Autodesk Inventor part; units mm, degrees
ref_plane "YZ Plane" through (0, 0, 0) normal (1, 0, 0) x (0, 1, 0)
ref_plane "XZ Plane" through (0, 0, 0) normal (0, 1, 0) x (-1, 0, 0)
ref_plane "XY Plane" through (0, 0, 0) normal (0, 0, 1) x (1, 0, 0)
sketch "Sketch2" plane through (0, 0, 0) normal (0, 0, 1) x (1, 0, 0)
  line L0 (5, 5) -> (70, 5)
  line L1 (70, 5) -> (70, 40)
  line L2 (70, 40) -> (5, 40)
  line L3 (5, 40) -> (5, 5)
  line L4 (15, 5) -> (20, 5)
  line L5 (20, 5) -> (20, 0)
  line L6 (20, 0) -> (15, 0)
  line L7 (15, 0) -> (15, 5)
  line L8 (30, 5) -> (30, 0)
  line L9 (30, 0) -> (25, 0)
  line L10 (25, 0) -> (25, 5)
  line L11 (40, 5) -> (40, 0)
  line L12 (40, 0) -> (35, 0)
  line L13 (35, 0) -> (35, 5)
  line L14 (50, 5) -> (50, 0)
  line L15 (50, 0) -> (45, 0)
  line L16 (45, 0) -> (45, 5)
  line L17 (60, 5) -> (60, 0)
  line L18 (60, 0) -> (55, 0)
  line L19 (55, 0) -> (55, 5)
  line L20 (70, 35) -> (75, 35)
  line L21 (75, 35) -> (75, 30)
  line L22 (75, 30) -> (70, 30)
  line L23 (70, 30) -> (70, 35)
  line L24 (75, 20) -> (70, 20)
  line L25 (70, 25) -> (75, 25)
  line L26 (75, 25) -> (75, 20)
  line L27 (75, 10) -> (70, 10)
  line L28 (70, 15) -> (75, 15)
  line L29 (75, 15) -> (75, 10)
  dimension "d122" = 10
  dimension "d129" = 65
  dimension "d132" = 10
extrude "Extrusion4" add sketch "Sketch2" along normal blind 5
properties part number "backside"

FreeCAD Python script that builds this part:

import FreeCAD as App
import Part
import Sketcher

V = App.Vector


def add_polygon(sketch, points):
    """Adds a closed chain of lines whose ends are joined by coincident constraints."""
    first, n = sketch.GeometryCount, len(points)
    for a, b in zip(points, points[1:] + points[:1]):
        sketch.addGeometry(Part.LineSegment(App.Vector(*a, 0), App.Vector(*b, 0)), False)
    for i in range(n):
        sketch.addConstraint(Sketcher.Constraint("Coincident", first + i, 2, first + (i + 1) % n, 1))

doc = App.newDocument("Part")
body = doc.addObject("PartDesign::Body", "Body")

# Sketch on XY plane
sketch1 = body.newObject("Sketcher::SketchObject", "Sketch")
sketch1.AttachmentSupport = (doc.getObject("XY_Plane"), [""])
sketch1.MapMode = "FlatFace"
add_polygon(sketch1, [(5, 40), (5, 5), (15, 5), (15, 0), (20, 0), (20, 5), (25, 5), (25, 0), (30, 0), (30, 5), (35, 5), (35, 0), (40, 0), (40, 5), (45, 5), (45, 0), (50, 0), (50, 5), (55, 5), (55, 0), (60, 0), (60, 5), (70, 5), (70, 10), (75, 10), (75, 15), (70, 15), (70, 20), (75, 20), (75, 25), (70, 25), (70, 30), (75, 30), (75, 35), (70, 35), (70, 40)])  # lines 0-35
sketch1.addConstraint(Sketcher.Constraint("Vertical", 0))
sketch1.addConstraint(Sketcher.Constraint("Horizontal", 1))
sketch1.addConstraint(Sketcher.Constraint("Vertical", 2))
sketch1.addConstraint(Sketcher.Constraint("Horizontal", 3))
sketch1.addConstraint(Sketcher.Constraint("Vertical", 4))
sketch1.addConstraint(Sketcher.Constraint("Horizontal", 5))
sketch1.addConstraint(Sketcher.Constraint("Vertical", 6))
sketch1.addConstraint(Sketcher.Constraint("Horizontal", 7))
sketch1.addConstraint(Sketcher.Constraint("Vertical", 8))
sketch1.addConstraint(Sketcher.Constraint("Horizontal", 9))
sketch1.addConstraint(Sketcher.Constraint("Vertical", 10))
sketch1.addConstraint(Sketcher.Constraint("Horizontal", 11))
sketch1.addConstraint(Sketcher.Constraint("Vertical", 12))
sketch1.addConstraint(Sketcher.Constraint("Horizontal", 13))
sketch1.addConstraint(Sketcher.Constraint("Vertical", 14))
sketch1.addConstraint(Sketcher.Constraint("Horizontal", 15))
sketch1.addConstraint(Sketcher.Constraint("Vertical", 16))
sketch1.addConstraint(Sketcher.Constraint("Horizontal", 17))
sketch1.addConstraint(Sketcher.Constraint("Vertical", 18))
sketch1.addConstraint(Sketcher.Constraint("Horizontal", 19))
sketch1.addConstraint(Sketcher.Constraint("Vertical", 20))
sketch1.addConstraint(Sketcher.Constraint("Horizontal", 21))
sketch1.addConstraint(Sketcher.Constraint("Vertical", 22))
sketch1.addConstraint(Sketcher.Constraint("Horizontal", 23))
sketch1.addConstraint(Sketcher.Constraint("Vertical", 24))
sketch1.addConstraint(Sketcher.Constraint("Horizontal", 25))
sketch1.addConstraint(Sketcher.Constraint("Vertical", 26))
sketch1.addConstraint(Sketcher.Constraint("Horizontal", 27))
sketch1.addConstraint(Sketcher.Constraint("Vertical", 28))
sketch1.addConstraint(Sketcher.Constraint("Horizontal", 29))
sketch1.addConstraint(Sketcher.Constraint("Vertical", 30))
sketch1.addConstraint(Sketcher.Constraint("Horizontal", 31))
sketch1.addConstraint(Sketcher.Constraint("Vertical", 32))
sketch1.addConstraint(Sketcher.Constraint("Horizontal", 33))
sketch1.addConstraint(Sketcher.Constraint("Vertical", 34))
sketch1.addConstraint(Sketcher.Constraint("Horizontal", 35))
sketch1.addConstraint(Sketcher.Constraint("PointOnObject", 2, 2, -1))
sketch1.addConstraint(Sketcher.Constraint("PointOnObject", 6, 2, -1))
sketch1.addConstraint(Sketcher.Constraint("PointOnObject", 10, 2, -1))
sketch1.addConstraint(Sketcher.Constraint("PointOnObject", 14, 2, -1))
sketch1.addConstraint(Sketcher.Constraint("PointOnObject", 18, 2, -1))
sketch1.addConstraint(Sketcher.Constraint("Horizontal", 1, 2, 4, 2))
sketch1.addConstraint(Sketcher.Constraint("Horizontal", 5, 2, 8, 2))
sketch1.addConstraint(Sketcher.Constraint("Horizontal", 9, 2, 12, 2))
sketch1.addConstraint(Sketcher.Constraint("Horizontal", 13, 2, 16, 2))
sketch1.addConstraint(Sketcher.Constraint("Horizontal", 17, 2, 20, 2))
sketch1.addConstraint(Sketcher.Constraint("Vertical", 22, 2, 25, 2))
sketch1.addConstraint(Sketcher.Constraint("Vertical", 24, 2, 27, 2))
sketch1.addConstraint(Sketcher.Constraint("Vertical", 26, 2, 29, 2))
sketch1.addConstraint(Sketcher.Constraint("Vertical", 28, 2, 31, 2))
sketch1.addConstraint(Sketcher.Constraint("Vertical", 30, 2, 33, 2))
sketch1.addConstraint(Sketcher.Constraint("Equal", 3, 5))
sketch1.addConstraint(Sketcher.Constraint("Equal", 5, 7))
sketch1.addConstraint(Sketcher.Constraint("Equal", 7, 9))
sketch1.addConstraint(Sketcher.Constraint("Equal", 9, 11))
sketch1.addConstraint(Sketcher.Constraint("Equal", 11, 13))
sketch1.addConstraint(Sketcher.Constraint("Equal", 13, 15))
sketch1.addConstraint(Sketcher.Constraint("Equal", 15, 17))
sketch1.addConstraint(Sketcher.Constraint("Equal", 17, 19))
sketch1.addConstraint(Sketcher.Constraint("Equal", 1, 21))
sketch1.addConstraint(Sketcher.Constraint("Equal", 19, 23))
sketch1.addConstraint(Sketcher.Constraint("Equal", 33, 2))
sketch1.addConstraint(Sketcher.Constraint("Equal", 20, 22))
sketch1.addConstraint(Sketcher.Constraint("Equal", 22, 24))
sketch1.addConstraint(Sketcher.Constraint("Equal", 24, 26))
sketch1.addConstraint(Sketcher.Constraint("Equal", 26, 28))
sketch1.addConstraint(Sketcher.Constraint("Equal", 28, 30))
sketch1.addConstraint(Sketcher.Constraint("Equal", 30, 32))
sketch1.addConstraint(Sketcher.Constraint("Equal", 32, 34))
sketch1.addConstraint(Sketcher.Constraint("DistanceX", 1, 1, 1, 2, 10.0))
sketch1.addConstraint(Sketcher.Constraint("DistanceX", 35, 2, 35, 1, 65.0))
sketch1.addConstraint(Sketcher.Constraint("DistanceX", -1, 1, 0, 2, 5.0))
pad1 = body.newObject("PartDesign::Pad", "Pad")
pad1.Profile = sketch1
pad1.Length = 5

doc.recompute()
